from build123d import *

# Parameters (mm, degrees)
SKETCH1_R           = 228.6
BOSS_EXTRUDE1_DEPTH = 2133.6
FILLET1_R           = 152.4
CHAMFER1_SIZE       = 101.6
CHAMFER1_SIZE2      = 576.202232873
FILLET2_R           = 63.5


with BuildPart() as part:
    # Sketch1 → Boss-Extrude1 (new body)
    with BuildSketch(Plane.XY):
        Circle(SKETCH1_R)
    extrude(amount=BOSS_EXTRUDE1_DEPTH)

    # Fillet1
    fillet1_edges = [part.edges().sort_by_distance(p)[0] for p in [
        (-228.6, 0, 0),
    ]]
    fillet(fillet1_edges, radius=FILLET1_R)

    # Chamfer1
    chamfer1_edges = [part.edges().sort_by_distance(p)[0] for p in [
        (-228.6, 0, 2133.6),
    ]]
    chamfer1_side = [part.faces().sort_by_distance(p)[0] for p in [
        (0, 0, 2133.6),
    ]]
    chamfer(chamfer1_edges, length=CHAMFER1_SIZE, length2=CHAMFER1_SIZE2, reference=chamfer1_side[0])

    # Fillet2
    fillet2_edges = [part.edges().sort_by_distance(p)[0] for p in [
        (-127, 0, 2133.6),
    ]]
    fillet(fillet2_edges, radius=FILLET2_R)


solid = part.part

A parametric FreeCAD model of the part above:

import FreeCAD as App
import Part
import Sketcher

V = App.Vector
Q = App.Units.Quantity


def edges_at(feature, points):
    """Names of the edges that pass closest to the given points."""
    edges = feature.Shape.Edges
    near = lambda p: min(range(len(edges)), key=lambda i: edges[i].distToShape(Part.Vertex(*p))[0])
    return sorted({f"Edge{near(p) + 1}" for p in points})

doc = App.newDocument("Part")
body = doc.addObject("PartDesign::Body", "Body")

# Sketch on XY plane
sketch1 = body.newObject("Sketcher::SketchObject", "Sketch")
sketch1.AttachmentSupport = (doc.getObject("XY_Plane"), [""])
sketch1.MapMode = "FlatFace"
sketch1.addGeometry(Part.Circle(V(0, 0, 0), V(0, 0, 1), 229), False)
sketch1.addConstraint(Sketcher.Constraint("Coincident", 0, 3, -1, 1))
sketch1.addConstraint(Sketcher.Constraint("Diameter", 0, Q("18 in")))
pad1 = body.newObject("PartDesign::Pad", "Pad")
pad1.Profile = sketch1
pad1.Length = Q("84 in")
doc.recompute()

fillet = body.newObject("PartDesign::Fillet", "Fillet")
fillet.Base = (pad1, edges_at(pad1, [(-228.6, 0, 0)]))
fillet.Radius = Q("6 in")
doc.recompute()

chamfer = body.newObject("PartDesign::Chamfer", "Chamfer")
chamfer.Base = (fillet, edges_at(fillet, [(-228.6, 0, 2133.6)]))
chamfer.ChamferType = "Two distances"
chamfer.Size = Q("4 in")
chamfer.Size2 = 576.202233
chamfer.FlipDirection = True
doc.recompute()

fillet2 = body.newObject("PartDesign::Fillet", "Fillet001")
fillet2.Base = (chamfer, edges_at(chamfer, [(-127, 0, 2133.6)]))
fillet2.Radius = Q("2.5 in")

doc.recompute()
